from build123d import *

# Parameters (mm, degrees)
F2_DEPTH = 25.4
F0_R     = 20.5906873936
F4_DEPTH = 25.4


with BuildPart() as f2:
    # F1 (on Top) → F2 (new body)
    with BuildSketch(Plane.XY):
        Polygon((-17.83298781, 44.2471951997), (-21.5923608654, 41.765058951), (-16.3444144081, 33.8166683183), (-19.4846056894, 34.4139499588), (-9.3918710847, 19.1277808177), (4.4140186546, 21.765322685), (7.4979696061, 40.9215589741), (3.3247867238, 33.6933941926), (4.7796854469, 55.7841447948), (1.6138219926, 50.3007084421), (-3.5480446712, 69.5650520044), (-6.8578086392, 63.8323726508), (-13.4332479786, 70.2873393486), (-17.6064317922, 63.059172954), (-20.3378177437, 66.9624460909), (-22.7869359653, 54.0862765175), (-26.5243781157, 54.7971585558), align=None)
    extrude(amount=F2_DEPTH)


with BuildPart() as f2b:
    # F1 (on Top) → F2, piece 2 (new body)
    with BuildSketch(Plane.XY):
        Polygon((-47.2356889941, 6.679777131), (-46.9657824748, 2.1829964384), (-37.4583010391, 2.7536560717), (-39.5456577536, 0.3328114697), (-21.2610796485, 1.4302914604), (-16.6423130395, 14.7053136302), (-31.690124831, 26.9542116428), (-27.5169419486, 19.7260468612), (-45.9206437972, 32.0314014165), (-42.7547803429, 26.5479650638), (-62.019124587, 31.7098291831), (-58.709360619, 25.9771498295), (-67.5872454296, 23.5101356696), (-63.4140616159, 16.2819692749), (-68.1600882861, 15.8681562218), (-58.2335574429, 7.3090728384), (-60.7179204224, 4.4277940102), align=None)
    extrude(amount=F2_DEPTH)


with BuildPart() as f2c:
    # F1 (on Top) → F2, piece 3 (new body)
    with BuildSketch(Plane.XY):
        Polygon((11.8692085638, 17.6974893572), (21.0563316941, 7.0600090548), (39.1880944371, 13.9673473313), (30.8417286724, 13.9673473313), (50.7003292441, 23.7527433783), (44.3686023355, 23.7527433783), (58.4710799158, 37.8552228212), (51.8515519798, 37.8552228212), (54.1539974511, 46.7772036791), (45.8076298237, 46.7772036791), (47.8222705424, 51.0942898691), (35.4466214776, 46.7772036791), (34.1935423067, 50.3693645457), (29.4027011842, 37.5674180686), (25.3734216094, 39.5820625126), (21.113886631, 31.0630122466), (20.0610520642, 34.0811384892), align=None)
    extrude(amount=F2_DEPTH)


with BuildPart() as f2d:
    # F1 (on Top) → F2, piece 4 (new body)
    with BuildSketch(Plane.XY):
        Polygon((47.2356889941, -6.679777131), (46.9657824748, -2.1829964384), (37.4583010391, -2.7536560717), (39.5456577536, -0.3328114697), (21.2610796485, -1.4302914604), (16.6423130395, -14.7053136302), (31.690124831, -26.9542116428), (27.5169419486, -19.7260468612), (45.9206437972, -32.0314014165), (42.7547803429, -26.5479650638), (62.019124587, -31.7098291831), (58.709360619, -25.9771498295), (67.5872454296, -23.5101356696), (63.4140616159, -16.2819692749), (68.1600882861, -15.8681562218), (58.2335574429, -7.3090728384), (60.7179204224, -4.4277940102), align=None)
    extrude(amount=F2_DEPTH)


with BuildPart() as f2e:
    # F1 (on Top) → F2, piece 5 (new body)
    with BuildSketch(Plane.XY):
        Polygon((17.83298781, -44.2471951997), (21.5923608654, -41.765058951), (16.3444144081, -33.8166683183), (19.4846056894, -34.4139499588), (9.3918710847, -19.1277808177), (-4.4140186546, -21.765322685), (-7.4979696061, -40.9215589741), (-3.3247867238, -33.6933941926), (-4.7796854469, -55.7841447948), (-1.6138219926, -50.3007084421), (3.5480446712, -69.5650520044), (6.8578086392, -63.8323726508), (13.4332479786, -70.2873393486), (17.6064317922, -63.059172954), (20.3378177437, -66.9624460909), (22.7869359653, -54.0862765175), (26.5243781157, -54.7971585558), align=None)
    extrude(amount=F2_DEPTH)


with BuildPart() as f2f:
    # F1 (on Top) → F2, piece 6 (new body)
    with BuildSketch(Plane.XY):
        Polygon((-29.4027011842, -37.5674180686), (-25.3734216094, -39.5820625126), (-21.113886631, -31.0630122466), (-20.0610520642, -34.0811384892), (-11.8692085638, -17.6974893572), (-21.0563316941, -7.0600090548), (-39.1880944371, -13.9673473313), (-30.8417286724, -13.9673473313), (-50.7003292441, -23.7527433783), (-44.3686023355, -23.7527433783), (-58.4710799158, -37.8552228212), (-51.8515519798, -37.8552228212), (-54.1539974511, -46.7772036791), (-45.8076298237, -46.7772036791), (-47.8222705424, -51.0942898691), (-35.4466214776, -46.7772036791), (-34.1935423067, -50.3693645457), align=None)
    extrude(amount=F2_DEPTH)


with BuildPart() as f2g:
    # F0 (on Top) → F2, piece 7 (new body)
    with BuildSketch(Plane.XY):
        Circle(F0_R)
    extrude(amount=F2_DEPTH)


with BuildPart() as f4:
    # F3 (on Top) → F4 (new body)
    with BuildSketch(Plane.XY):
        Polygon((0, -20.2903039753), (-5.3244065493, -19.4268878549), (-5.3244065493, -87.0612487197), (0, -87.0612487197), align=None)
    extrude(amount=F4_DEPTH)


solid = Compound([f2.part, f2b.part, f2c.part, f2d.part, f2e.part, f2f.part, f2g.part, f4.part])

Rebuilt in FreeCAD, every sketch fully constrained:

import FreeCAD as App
import Part
import Sketcher

V = App.Vector
Q = App.Units.Quantity

doc = App.newDocument("Part")
params = doc.addObject("Spreadsheet::Sheet", "Params")
for row, (alias, value) in enumerate([
    ("pad1_length", "1 in"),
    ("pad2_length", "1 in"),
    ("pad3_length", "1 in"),
    ("pad4_length", "1 in"),
    ("pad5_length", "1 in"),
    ("pad6_length", "1 in"),
    ("pad7_length", "1 in"),
    ("pad8_length", "1 in"),
], start=1):
    params.set(f"A{row}", alias)
    params.set(f"B{row}", "=" + value)
    params.setAlias(f"B{row}", alias)

body = doc.addObject("PartDesign::Body", "Body")

sketch1 = body.newObject("Sketcher::SketchObject", "Sketch")
sketch1.AttachmentSupport = (doc.getObject("XY_Plane"), [""])
sketch1.MapMode = "FlatFace"
sketch1.addGeometry([
    Part.LineSegment(V(-17.8, 44.2, 0), V(-21.6, 41.8, 0)),
    Part.LineSegment(V(-21.6, 41.8, 0), V(-16.3, 33.8, 0)),
    Part.LineSegment(V(-16.3, 33.8, 0), V(-19.5, 34.4, 0)),
    Part.LineSegment(V(-19.5, 34.4, 0), V(-9.4, 19.1, 0)),
    Part.LineSegment(V(-9.4, 19.1, 0), V(4.4, 21.8, 0)),
    Part.LineSegment(V(4.4, 21.8, 0), V(7.5, 40.9, 0)),
    Part.LineSegment(V(7.5, 40.9, 0), V(3.3, 33.7, 0)),
    Part.LineSegment(V(3.3, 33.7, 0), V(4.8, 55.8, 0)),
    Part.LineSegment(V(4.8, 55.8, 0), V(1.6, 50.3, 0)),
    Part.LineSegment(V(1.6, 50.3, 0), V(-3.5, 69.6, 0)),
    Part.LineSegment(V(-3.5, 69.6, 0), V(-6.9, 63.8, 0)),
    Part.LineSegment(V(-6.9, 63.8, 0), V(-13.4, 70.3, 0)),
    Part.LineSegment(V(-13.4, 70.3, 0), V(-17.6, 63.1, 0)),
    Part.LineSegment(V(-17.6, 63.1, 0), V(-20.3, 67, 0)),
    Part.LineSegment(V(-20.3, 67, 0), V(-22.8, 54.1, 0)),
    Part.LineSegment(V(-22.8, 54.1, 0), V(-26.5, 54.8, 0)),
    Part.LineSegment(V(-26.5, 54.8, 0), V(-17.8, 44.2, 0)),
], False)
sketch1.addConstraint([
    Sketcher.Constraint("Coincident", 0, 2, 1, 1),
    Sketcher.Constraint("Coincident", 1, 2, 2, 1),
    Sketcher.Constraint("Coincident", 2, 2, 3, 1),
    Sketcher.Constraint("Coincident", 3, 2, 4, 1),
    Sketcher.Constraint("Coincident", 4, 2, 5, 1),
    Sketcher.Constraint("Coincident", 5, 2, 6, 1),
    Sketcher.Constraint("Coincident", 6, 2, 7, 1),
    Sketcher.Constraint("Coincident", 7, 2, 8, 1),
    Sketcher.Constraint("Coincident", 8, 2, 9, 1),
    Sketcher.Constraint("Coincident", 9, 2, 10, 1),
    Sketcher.Constraint("Coincident", 10, 2, 11, 1),
    Sketcher.Constraint("Coincident", 11, 2, 12, 1),
    Sketcher.Constraint("Coincident", 12, 2, 13, 1),
    Sketcher.Constraint("Coincident", 13, 2, 14, 1),
    Sketcher.Constraint("Coincident", 14, 2, 15, 1),
    Sketcher.Constraint("Coincident", 15, 2, 16, 1),
    Sketcher.Constraint("Coincident", 16, 2, 0, 1),
    Sketcher.Constraint("Perpendicular", 0, 1),
    Sketcher.Constraint("Parallel", 1, 3),
    Sketcher.Constraint("Parallel", 6, 8),
    Sketcher.Constraint("Parallel", 8, 10),
    Sketcher.Constraint("Parallel", 10, 12),
    Sketcher.Constraint("Perpendicular", 2, 14),
    Sketcher.Constraint("Perpendicular", 14, 15),
    Sketcher.Constraint("Equal", 6, 12),
    Sketcher.Constraint("Angle", 6, Q("-120 deg")),
    Sketcher.Constraint("Angle", 9, Q("105.000004 deg")),
    Sketcher.Constraint("DistanceY", 5, 2, 0, 2, Q("0.8435 mm")),
    Sketcher.Constraint("DistanceX", 1, 2, 6, 2, Q("19.669201 mm")),
    Sketcher.Constraint("DistanceX", 6, 2, 7, 2, Q("1.454899 mm")),
    Sketcher.Constraint("DistanceY", 12, 2, 10, 2, Q("0.7732 mm")),
    Sketcher.Constraint("DistanceY", 0, 2, 15, 2, Q("13.0321 mm")),
    Sketcher.Constraint("Distance", 2, Q("3.19649 mm")),
    Sketcher.Constraint("Distance", 5, Q("19.40289 mm")),
    Sketcher.Constraint("Distance", 7, Q("22.138609 mm")),
    Sketcher.Constraint("Distance", 14, Q("13.107018 mm")),
    Sketcher.Constraint("Distance", 15, Q("3.804448 mm")),
    Sketcher.Constraint("DistanceX", 0, 2, -1, 1, Q("21.592361 mm")),
    Sketcher.Constraint("DistanceY", -1, 1, 0, 2, Q("41.765059 mm")),
    Sketcher.Constraint("DistanceY", -1, 1, 1, 2, Q("33.816668 mm")),
    Sketcher.Constraint("DistanceY", -1, 1, 2, 2, Q("34.41395 mm")),
    Sketcher.Constraint("DistanceX", 3, 2, -1, 1, Q("9.391871 mm")),
    Sketcher.Constraint("DistanceY", -1, 1, 3, 2, Q("19.127781 mm")),
    Sketcher.Constraint("DistanceX", -1, 1, 4, 2, Q("4.414019 mm")),
    Sketcher.Constraint("DistanceX", -1, 1, 5, 2, Q("7.49797 mm")),
    Sketcher.Constraint("DistanceX", -1, 1, 8, 2, Q("1.613822 mm")),
    Sketcher.Constraint("DistanceX", 10, 2, -1, 1, Q("6.857809 mm")),
    Sketcher.Constraint("DistanceY", -1, 1, 11, 2, Q("70.287339 mm")),
    Sketcher.Constraint("DistanceX", 12, 2, -1, 1, Q("17.606432 mm")),
    Sketcher.Constraint("DistanceX", 15, 2, -1, 1, Q("26.524378 mm")),
    Sketcher.Constraint("DistanceX", 14, 2, 16, 2, Q("4.953948 mm")),
])
pad1 = body.newObject("PartDesign::Pad", "Pad")
pad1.Profile = sketch1
pad1.setExpression("Length", "Params.pad1_length")
body2 = doc.addObject("PartDesign::Body", "Body001")

sketch2 = body2.newObject("Sketcher::SketchObject", "Sketch001")
sketch2.AttachmentSupport = (doc.getObject("XY_Plane001"), [""])
sketch2.MapMode = "FlatFace"
sketch2.addGeometry([
    Part.LineSegment(V(-47.2, 6.7, 0), V(-47, 2.2, 0)),
    Part.LineSegment(V(-47, 2.2, 0), V(-37.5, 2.8, 0)),
    Part.LineSegment(V(-37.5, 2.8, 0), V(-39.5, 0.3, 0)),
    Part.LineSegment(V(-39.5, 0.3, 0), V(-21.3, 1.4, 0)),
    Part.LineSegment(V(-21.3, 1.4, 0), V(-16.6, 14.7, 0)),
    Part.LineSegment(V(-16.6, 14.7, 0), V(-31.7, 27, 0)),
    Part.LineSegment(V(-31.7, 27, 0), V(-27.5, 19.7, 0)),
    Part.LineSegment(V(-27.5, 19.7, 0), V(-45.9, 32, 0)),
    Part.LineSegment(V(-45.9, 32, 0), V(-42.8, 26.5, 0)),
    Part.LineSegment(V(-42.8, 26.5, 0), V(-62, 31.7, 0)),
    Part.LineSegment(V(-62, 31.7, 0), V(-58.7, 26, 0)),
    Part.LineSegment(V(-58.7, 26, 0), V(-67.6, 23.5, 0)),
    Part.LineSegment(V(-67.6, 23.5, 0), V(-63.4, 16.3, 0)),
    Part.LineSegment(V(-63.4, 16.3, 0), V(-68.2, 15.9, 0)),
    Part.LineSegment(V(-68.2, 15.9, 0), V(-58.2, 7.3, 0)),
    Part.LineSegment(V(-58.2, 7.3, 0), V(-60.7, 4.4, 0)),
    Part.LineSegment(V(-60.7, 4.4, 0), V(-47.2, 6.7, 0)),
], False)
sketch2.addConstraint([
    Sketcher.Constraint("Coincident", 0, 2, 1, 1),
    Sketcher.Constraint("Coincident", 1, 2, 2, 1),
    Sketcher.Constraint("Coincident", 2, 2, 3, 1),
    Sketcher.Constraint("Coincident", 3, 2, 4, 1),
    Sketcher.Constraint("Coincident", 4, 2, 5, 1),
    Sketcher.Constraint("Coincident", 5, 2, 6, 1),
    Sketcher.Constraint("Coincident", 6, 2, 7, 1),
    Sketcher.Constraint("Coincident", 7, 2, 8, 1),
    Sketcher.Constraint("Coincident", 8, 2, 9, 1),
    Sketcher.Constraint("Coincident", 9, 2, 10, 1),
    Sketcher.Constraint("Coincident", 10, 2, 11, 1),
    Sketcher.Constraint("Coincident", 11, 2, 12, 1),
    Sketcher.Constraint("Coincident", 12, 2, 13, 1),
    Sketcher.Constraint("Coincident", 13, 2, 14, 1),
    Sketcher.Constraint("Coincident", 14, 2, 15, 1),
    Sketcher.Constraint("Coincident", 15, 2, 16, 1),
    Sketcher.Constraint("Coincident", 16, 2, 0, 1),
    Sketcher.Constraint("Perpendicular", 0, 1),
    Sketcher.Constraint("Parallel", 1, 3),
    Sketcher.Constraint("Parallel", 6, 8),
    Sketcher.Constraint("Parallel", 8, 10),
    Sketcher.Constraint("Parallel", 10, 12),
    Sketcher.Constraint("Perpendicular", 2, 14),
    Sketcher.Constraint("Perpendicular", 14, 15),
    Sketcher.Constraint("Equal", 6, 12),
    Sketcher.Constraint("Angle", 6, Q("-60 deg")),
    Sketcher.Constraint("Angle", 9, Q("165.000004 deg")),
    Sketcher.Constraint("DistanceY", 12, 2, 10, 2, Q("0.3817 in")),
    Sketcher.Constraint("DistanceY", 15, 2, 12, 2, Q("0.4666998 in")),
    Sketcher.Constraint("DistanceX", 1, 2, -1, 1, Q("37.458301 mm")),
    Sketcher.Constraint("DistanceY", -1, 1, 7, 2, Q("32.031401 mm")),
    Sketcher.Constraint("DistanceY", 4, 2, 5, 2, Q("12.248898 mm")),
    Sketcher.Constraint("DistanceY", 2, 2, 5, 2, Q("26.6214 mm")),
    Sketcher.Constraint("DistanceX", 7, 2, 6, 2, Q("18.403702 mm")),
    Sketcher.Constraint("DistanceX", 9, 2, 5, 2, Q("30.329 mm")),
    Sketcher.Constraint("DistanceX", 11, 2, 7, 2, Q("21.666602 mm")),
    Sketcher.Constraint("DistanceX", 12, 2, 10, 2, Q("4.704701 mm")),
    Sketcher.Constraint("Distance", 2, Q("3.19649 mm")),
    Sketcher.Constraint("Distance", 5, Q("19.40289 mm")),
    Sketcher.Constraint("Distance", 7, Q("22.138609 mm")),
    Sketcher.Constraint("Distance", 14, Q("13.107018 mm")),
    Sketcher.Constraint("Distance", 15, Q("3.804448 mm")),
    Sketcher.Constraint("DistanceY", -1, 1, 2, 2, Q("0.332811 mm")),
    Sketcher.Constraint("DistanceX", 3, 2, -1, 1, Q("21.26108 mm")),
    Sketcher.Constraint("DistanceY", -1, 1, 3, 2, Q("1.430291 mm")),
    Sketcher.Constraint("DistanceX", 6, 2, -1, 1, Q("27.516942 mm")),
    Sketcher.Constraint("DistanceX", 8, 2, -1, 1, Q("42.75478 mm")),
    Sketcher.Constraint("DistanceX", 13, 2, -1, 1, Q("68.160088 mm")),
    Sketcher.Constraint("DistanceX", 15, 2, -1, 1, Q("60.71792 mm")),
    Sketcher.Constraint("DistanceX", 16, 2, -1, 1, Q("47.235689 mm")),
    Sketcher.Constraint("DistanceX", 0, 2, 1, 2, Q("9.507481 mm")),
])
pad2 = body2.newObject("PartDesign::Pad", "Pad001")
pad2.Profile = sketch2
pad2.setExpression("Length", "Params.pad2_length")
body3 = doc.addObject("PartDesign::Body", "Body002")

sketch3 = body3.newObject("Sketcher::SketchObject", "Sketch002")
sketch3.AttachmentSupport = (doc.getObject("XY_Plane002"), [""])
sketch3.MapMode = "FlatFace"
sketch3.addGeometry([
    Part.LineSegment(V(11.9, 17.7, 0), V(21.1, 7.1, 0)),
    Part.LineSegment(V(21.1, 7.1, 0), V(39.2, 14, 0)),
    Part.LineSegment(V(39.2, 14, 0), V(30.8, 14, 0)),
    Part.LineSegment(V(30.8, 14, 0), V(50.7, 23.8, 0)),
    Part.LineSegment(V(50.7, 23.8, 0), V(44.4, 23.8, 0)),
    Part.LineSegment(V(44.4, 23.8, 0), V(58.5, 37.9, 0)),
    Part.LineSegment(V(58.5, 37.9, 0), V(51.9, 37.9, 0)),
    Part.LineSegment(V(51.9, 37.9, 0), V(54.2, 46.8, 0)),
    Part.LineSegment(V(54.2, 46.8, 0), V(45.8, 46.8, 0)),
    Part.LineSegment(V(45.8, 46.8, 0), V(47.8, 51.1, 0)),
    Part.LineSegment(V(47.8, 51.1, 0), V(35.4, 46.8, 0)),
    Part.LineSegment(V(35.4, 46.8, 0), V(34.2, 50.4, 0)),
    Part.LineSegment(V(34.2, 50.4, 0), V(29.4, 37.6, 0)),
    Part.LineSegment(V(29.4, 37.6, 0), V(25.4, 39.6, 0)),
    Part.LineSegment(V(25.4, 39.6, 0), V(21.1, 31.1, 0)),
    Part.LineSegment(V(21.1, 31.1, 0), V(20.1, 34.1, 0)),
    Part.LineSegment(V(20.1, 34.1, 0), V(11.9, 17.7, 0)),
], False)
sketch3.addConstraint([
    Sketcher.Constraint("Coincident", 0, 2, 1, 1),
    Sketcher.Constraint("Coincident", 1, 2, 2, 1),
    Sketcher.Constraint("Coincident", 2, 2, 3, 1),
    Sketcher.Constraint("Coincident", 3, 2, 4, 1),
    Sketcher.Constraint("Coincident", 4, 2, 5, 1),
    Sketcher.Constraint("Coincident", 5, 2, 6, 1),
    Sketcher.Constraint("Coincident", 6, 2, 7, 1),
    Sketcher.Constraint("Coincident", 7, 2, 8, 1),
    Sketcher.Constraint("Coincident", 8, 2, 9, 1),
    Sketcher.Constraint("Coincident", 9, 2, 10, 1),
    Sketcher.Constraint("Coincident", 10, 2, 11, 1),
    Sketcher.Constraint("Coincident", 11, 2, 12, 1),
    Sketcher.Constraint("Coincident", 12, 2, 13, 1),
    Sketcher.Constraint("Coincident", 13, 2, 14, 1),
    Sketcher.Constraint("Coincident", 14, 2, 15, 1),
    Sketcher.Constraint("Coincident", 15, 2, 16, 1),
    Sketcher.Constraint("Coincident", 16, 2, 0, 1),
    Sketcher.Constraint("Horizontal", 2),
    Sketcher.Constraint("Horizontal", 4),
    Sketcher.Constraint("Horizontal", 6),
    Sketcher.Constraint("Horizontal", 8),
    Sketcher.Constraint("Perpendicular", 10, 11),
    Sketcher.Constraint("Perpendicular", 13, 14),
    Sketcher.Constraint("Parallel", 11, 15),
    Sketcher.Constraint("Parallel", 14, 16),
    Sketcher.Constraint("Horizontal", 8, 2, 10, 2),
    Sketcher.Constraint("Equal", 2, 8),
    Sketcher.Constraint("Angle", 5, Q("45.000004 deg")),
    Sketcher.Constraint("DistanceX", -1, 1, 12, 2, Q("29.402701 mm")),
    Sketcher.Constraint("DistanceX", 2, 2, 3, 2, Q("19.858601 mm")),
    Sketcher.Constraint("DistanceX", 8, 2, 3, 2, Q("4.892699 mm")),
    Sketcher.Constraint("DistanceX", 12, 2, 4, 2, Q("14.965901 mm")),
    Sketcher.Constraint("DistanceX", 13, 2, 10, 2, Q("10.0732 mm")),
    Sketcher.Constraint("Distance", 1, Q("19.40289 mm")),
    Sketcher.Constraint("Distance", 3, Q("22.138609 mm")),
    Sketcher.Constraint("Distance", 10, Q("13.107018 mm")),
    Sketcher.Constraint("Distance", 11, Q("3.804448 mm")),
    Sketcher.Constraint("Distance", 15, Q("3.19649 mm")),
    Sketcher.Constraint("DistanceX", 2, 2, 2, 1, Q("8.346366 mm")),
    Sketcher.Constraint("DistanceX", 4, 2, 4, 1, Q("6.331727 mm")),
    Sketcher.Constraint("DistanceX", 6, 2, 6, 1, Q("6.619528 mm")),
    Sketcher.Constraint("DistanceX", -1, 1, 0, 2, Q("21.056332 mm")),
    Sketcher.Constraint("DistanceY", -1, 1, 0, 2, Q("7.060009 mm")),
    Sketcher.Constraint("DistanceX", -1, 1, 5, 2, Q("58.47108 mm")),
    Sketcher.Constraint("DistanceX", -1, 1, 9, 2, Q("47.822271 mm")),
    Sketcher.Constraint("DistanceY", -1, 1, 9, 2, Q("51.09429 mm")),
    Sketcher.Constraint("DistanceX", -1, 1, 10, 2, Q("35.446621 mm")),
    Sketcher.Constraint("DistanceY", -1, 1, 12, 2, Q("37.567418 mm")),
    Sketcher.Constraint("DistanceY", -1, 1, 15, 2, Q("34.081138 mm")),
    Sketcher.Constraint("DistanceX", -1, 1, 16, 2, Q("11.869209 mm")),
    Sketcher.Constraint("DistanceY", -1, 1, 16, 2, Q("17.697489 mm")),
])
pad3 = body3.newObject("PartDesign::Pad", "Pad002")
pad3.Profile = sketch3
pad3.setExpression("Length", "Params.pad3_length")
body4 = doc.addObject("PartDesign::Body", "Body003")

sketch4 = body4.newObject("Sketcher::SketchObject", "Sketch003")
sketch4.AttachmentSupport = (doc.getObject("XY_Plane003"), [""])
sketch4.MapMode = "FlatFace"
sketch4.addGeometry([
    Part.LineSegment(V(47.2, -6.7, 0), V(47, -2.2, 0)),
    Part.LineSegment(V(47, -2.2, 0), V(37.5, -2.8, 0)),
    Part.LineSegment(V(37.5, -2.8, 0), V(39.5, -0.3, 0)),
    Part.LineSegment(V(39.5, -0.3, 0), V(21.3, -1.4, 0)),
    Part.LineSegment(V(21.3, -1.4, 0), V(16.6, -14.7, 0)),
    Part.LineSegment(V(16.6, -14.7, 0), V(31.7, -27, 0)),
    Part.LineSegment(V(31.7, -27, 0), V(27.5, -19.7, 0)),
    Part.LineSegment(V(27.5, -19.7, 0), V(45.9, -32, 0)),
    Part.LineSegment(V(45.9, -32, 0), V(42.8, -26.5, 0)),
    Part.LineSegment(V(42.8, -26.5, 0), V(62, -31.7, 0)),
    Part.LineSegment(V(62, -31.7, 0), V(58.7, -26, 0)),
    Part.LineSegment(V(58.7, -26, 0), V(67.6, -23.5, 0)),
    Part.LineSegment(V(67.6, -23.5, 0), V(63.4, -16.3, 0)),
    Part.LineSegment(V(63.4, -16.3, 0), V(68.2, -15.9, 0)),
    Part.LineSegment(V(68.2, -15.9, 0), V(58.2, -7.3, 0)),
    Part.LineSegment(V(58.2, -7.3, 0), V(60.7, -4.4, 0)),
    Part.LineSegment(V(60.7, -4.4, 0), V(47.2, -6.7, 0)),
], False)
sketch4.addConstraint([
    Sketcher.Constraint("Coincident", 0, 2, 1, 1),
    Sketcher.Constraint("Coincident", 1, 2, 2, 1),
    Sketcher.Constraint("Coincident", 2, 2, 3, 1),
    Sketcher.Constraint("Coincident", 3, 2, 4, 1),
    Sketcher.Constraint("Coincident", 4, 2, 5, 1),
    Sketcher.Constraint("Coincident", 5, 2, 6, 1),
    Sketcher.Constraint("Coincident", 6, 2, 7, 1),
    Sketcher.Constraint("Coincident", 7, 2, 8, 1),
    Sketcher.Constraint("Coincident", 8, 2, 9, 1),
    Sketcher.Constraint("Coincident", 9, 2, 10, 1),
    Sketcher.Constraint("Coincident", 10, 2, 11, 1),
    Sketcher.Constraint("Coincident", 11, 2, 12, 1),
    Sketcher.Constraint("Coincident", 12, 2, 13, 1),
    Sketcher.Constraint("Coincident", 13, 2, 14, 1),
    Sketcher.Constraint("Coincident", 14, 2, 15, 1),
    Sketcher.Constraint("Coincident", 15, 2, 16, 1),
    Sketcher.Constraint("Coincident", 16, 2, 0, 1),
    Sketcher.Constraint("Perpendicular", 0, 1),
    Sketcher.Constraint("Parallel", 1, 3),
    Sketcher.Constraint("Parallel", 6, 8),
    Sketcher.Constraint("Parallel", 8, 10),
    Sketcher.Constraint("Parallel", 10, 12),
    Sketcher.Constraint("Perpendicular", 2, 14),
    Sketcher.Constraint("Perpendicular", 14, 15),
    Sketcher.Constraint("Equal", 6, 12),
    Sketcher.Constraint("Angle", 6, Q("120 deg")),
    Sketcher.Constraint("Angle", 9, Q("-14.999996 deg")),
    Sketcher.Constraint("DistanceY", 10, 2, 12, 2, Q("0.3817 in")),
    Sketcher.Constraint("DistanceY", 12, 2, 15, 2, Q("0.4666998 in")),
    Sketcher.Constraint("DistanceX", -1, 1, 1, 2, Q("37.458301 mm")),
    Sketcher.Constraint("DistanceY", 7, 2, -1, 1, Q("32.031401 mm")),
    Sketcher.Constraint("DistanceY", 5, 2, 4, 2, Q("12.248898 mm")),
    Sketcher.Constraint("DistanceY", 5, 2, 2, 2, Q("26.6214 mm")),
    Sketcher.Constraint("DistanceX", 6, 2, 7, 2, Q("18.403702 mm")),
    Sketcher.Constraint("DistanceX", 5, 2, 9, 2, Q("30.329 mm")),
    Sketcher.Constraint("DistanceX", 7, 2, 11, 2, Q("21.666602 mm")),
    Sketcher.Constraint("DistanceX", 10, 2, 12, 2, Q("4.704701 mm")),
    Sketcher.Constraint("Distance", 2, Q("3.19649 mm")),
    Sketcher.Constraint("Distance", 5, Q("19.40289 mm")),
    Sketcher.Constraint("Distance", 7, Q("22.138609 mm")),
    Sketcher.Constraint("Distance", 14, Q("13.107018 mm")),
    Sketcher.Constraint("Distance", 15, Q("3.804448 mm")),
    Sketcher.Constraint("DistanceY", 2, 2, -1, 1, Q("0.332811 mm")),
    Sketcher.Constraint("DistanceX", -1, 1, 3, 2, Q("21.26108 mm")),
    Sketcher.Constraint("DistanceY", 3, 2, -1, 1, Q("1.430291 mm")),
    Sketcher.Constraint("DistanceX", -1, 1, 6, 2, Q("27.516942 mm")),
    Sketcher.Constraint("DistanceX", -1, 1, 8, 2, Q("42.75478 mm")),
    Sketcher.Constraint("DistanceX", -1, 1, 13, 2, Q("68.160088 mm")),
    Sketcher.Constraint("DistanceX", -1, 1, 15, 2, Q("60.71792 mm")),
    Sketcher.Constraint("DistanceX", -1, 1, 16, 2, Q("47.235689 mm")),
    Sketcher.Constraint("DistanceX", 1, 2, 0, 2, Q("9.507481 mm")),
])
pad4 = body4.newObject("PartDesign::Pad", "Pad003")
pad4.Profile = sketch4
pad4.setExpression("Length", "Params.pad4_length")
body5 = doc.addObject("PartDesign::Body", "Body004")

sketch5 = body5.newObject("Sketcher::SketchObject", "Sketch004")
sketch5.AttachmentSupport = (doc.getObject("XY_Plane004"), [""])
sketch5.MapMode = "FlatFace"
sketch5.addGeometry([
    Part.LineSegment(V(17.8, -44.2, 0), V(21.6, -41.8, 0)),
    Part.LineSegment(V(21.6, -41.8, 0), V(16.3, -33.8, 0)),
    Part.LineSegment(V(16.3, -33.8, 0), V(19.5, -34.4, 0)),
    Part.LineSegment(V(19.5, -34.4, 0), V(9.4, -19.1, 0)),
    Part.LineSegment(V(9.4, -19.1, 0), V(-4.4, -21.8, 0)),
    Part.LineSegment(V(-4.4, -21.8, 0), V(-7.5, -40.9, 0)),
    Part.LineSegment(V(-7.5, -40.9, 0), V(-3.3, -33.7, 0)),
    Part.LineSegment(V(-3.3, -33.7, 0), V(-4.8, -55.8, 0)),
    Part.LineSegment(V(-4.8, -55.8, 0), V(-1.6, -50.3, 0)),
    Part.LineSegment(V(-1.6, -50.3, 0), V(3.5, -69.6, 0)),
    Part.LineSegment(V(3.5, -69.6, 0), V(6.9, -63.8, 0)),
    Part.LineSegment(V(6.9, -63.8, 0), V(13.4, -70.3, 0)),
    Part.LineSegment(V(13.4, -70.3, 0), V(17.6, -63.1, 0)),
    Part.LineSegment(V(17.6, -63.1, 0), V(20.3, -67, 0)),
    Part.LineSegment(V(20.3, -67, 0), V(22.8, -54.1, 0)),
    Part.LineSegment(V(22.8, -54.1, 0), V(26.5, -54.8, 0)),
    Part.LineSegment(V(26.5, -54.8, 0), V(17.8, -44.2, 0)),
], False)
sketch5.addConstraint([
    Sketcher.Constraint("Coincident", 0, 2, 1, 1),
    Sketcher.Constraint("Coincident", 1, 2, 2, 1),
    Sketcher.Constraint("Coincident", 2, 2, 3, 1),
    Sketcher.Constraint("Coincident", 3, 2, 4, 1),
    Sketcher.Constraint("Coincident", 4, 2, 5, 1),
    Sketcher.Constraint("Coincident", 5, 2, 6, 1),
    Sketcher.Constraint("Coincident", 6, 2, 7, 1),
    Sketcher.Constraint("Coincident", 7, 2, 8, 1),
    Sketcher.Constraint("Coincident", 8, 2, 9, 1),
    Sketcher.Constraint("Coincident", 9, 2, 10, 1),
    Sketcher.Constraint("Coincident", 10, 2, 11, 1),
    Sketcher.Constraint("Coincident", 11, 2, 12, 1),
    Sketcher.Constraint("Coincident", 12, 2, 13, 1),
    Sketcher.Constraint("Coincident", 13, 2, 14, 1),
    Sketcher.Constraint("Coincident", 14, 2, 15, 1),
    Sketcher.Constraint("Coincident", 15, 2, 16, 1),
    Sketcher.Constraint("Coincident", 16, 2, 0, 1),
    Sketcher.Constraint("Perpendicular", 0, 1),
    Sketcher.Constraint("Parallel", 1, 3),
    Sketcher.Constraint("Parallel", 6, 8),
    Sketcher.Constraint("Parallel", 8, 10),
    Sketcher.Constraint("Parallel", 10, 12),
    Sketcher.Constraint("Perpendicular", 2, 14),
    Sketcher.Constraint("Perpendicular", 14, 15),
    Sketcher.Constraint("Equal", 6, 12),
    Sketcher.Constraint("Angle", 6, Q("60 deg")),
    Sketcher.Constraint("Angle", 9, Q("-74.999996 deg")),
    Sketcher.Constraint("DistanceY", 0, 2, 5, 2, Q("0.8435 mm")),
    Sketcher.Constraint("DistanceX", 6, 2, 1, 2, Q("19.669201 mm")),
    Sketcher.Constraint("DistanceX", 7, 2, 6, 2, Q("1.454899 mm")),
    Sketcher.Constraint("DistanceY", 10, 2, 12, 2, Q("0.7732 mm")),
    Sketcher.Constraint("DistanceY", 15, 2, 0, 2, Q("13.0321 mm")),
    Sketcher.Constraint("Distance", 2, Q("3.19649 mm")),
    Sketcher.Constraint("Distance", 5, Q("19.40289 mm")),
    Sketcher.Constraint("Distance", 7, Q("22.138609 mm")),
    Sketcher.Constraint("Distance", 14, Q("13.107018 mm")),
    Sketcher.Constraint("Distance", 15, Q("3.804448 mm")),
    Sketcher.Constraint("DistanceX", -1, 1, 0, 2, Q("21.592361 mm")),
    Sketcher.Constraint("DistanceY", 0, 2, -1, 1, Q("41.765059 mm")),
    Sketcher.Constraint("DistanceY", 1, 2, -1, 1, Q("33.816668 mm")),
    Sketcher.Constraint("DistanceY", 2, 2, -1, 1, Q("34.41395 mm")),
    Sketcher.Constraint("DistanceX", -1, 1, 3, 2, Q("9.391871 mm")),
    Sketcher.Constraint("DistanceY", 3, 2, -1, 1, Q("19.127781 mm")),
    Sketcher.Constraint("DistanceX", 4, 2, -1, 1, Q("4.414019 mm")),
    Sketcher.Constraint("DistanceX", 5, 2, -1, 1, Q("7.49797 mm")),
    Sketcher.Constraint("DistanceX", 8, 2, -1, 1, Q("1.613822 mm")),
    Sketcher.Constraint("DistanceX", -1, 1, 10, 2, Q("6.857809 mm")),
    Sketcher.Constraint("DistanceY", 11, 2, -1, 1, Q("70.287339 mm")),
    Sketcher.Constraint("DistanceX", -1, 1, 12, 2, Q("17.606432 mm")),
    Sketcher.Constraint("DistanceX", -1, 1, 15, 2, Q("26.524378 mm")),
    Sketcher.Constraint("DistanceX", 16, 2, 14, 2, Q("4.953948 mm")),
])
pad5 = body5.newObject("PartDesign::Pad", "Pad004")
pad5.Profile = sketch5
pad5.setExpression("Length", "Params.pad5_length")
body6 = doc.addObject("PartDesign::Body", "Body005")

sketch6 = body6.newObject("Sketcher::SketchObject", "Sketch005")
sketch6.AttachmentSupport = (doc.getObject("XY_Plane005"), [""])
sketch6.MapMode = "FlatFace"
sketch6.addGeometry([
    Part.LineSegment(V(-29.4, -37.6, 0), V(-25.4, -39.6, 0)),
    Part.LineSegment(V(-25.4, -39.6, 0), V(-21.1, -31.1, 0)),
    Part.LineSegment(V(-21.1, -31.1, 0), V(-20.1, -34.1, 0)),
    Part.LineSegment(V(-20.1, -34.1, 0), V(-11.9, -17.7, 0)),
    Part.LineSegment(V(-11.9, -17.7, 0), V(-21.1, -7.1, 0)),
    Part.LineSegment(V(-21.1, -7.1, 0), V(-39.2, -14, 0)),
    Part.LineSegment(V(-39.2, -14, 0), V(-30.8, -14, 0)),
    Part.LineSegment(V(-30.8, -14, 0), V(-50.7, -23.8, 0)),
    Part.LineSegment(V(-50.7, -23.8, 0), V(-44.4, -23.8, 0)),
    Part.LineSegment(V(-44.4, -23.8, 0), V(-58.5, -37.9, 0)),
    Part.LineSegment(V(-58.5, -37.9, 0), V(-51.9, -37.9, 0)),
    Part.LineSegment(V(-51.9, -37.9, 0), V(-54.2, -46.8, 0)),
    Part.LineSegment(V(-54.2, -46.8, 0), V(-45.8, -46.8, 0)),
    Part.LineSegment(V(-45.8, -46.8, 0), V(-47.8, -51.1, 0)),
    Part.LineSegment(V(-47.8, -51.1, 0), V(-35.4, -46.8, 0)),
    Part.LineSegment(V(-35.4, -46.8, 0), V(-34.2, -50.4, 0)),
    Part.LineSegment(V(-34.2, -50.4, 0), V(-29.4, -37.6, 0)),
], False)
sketch6.addConstraint([
    Sketcher.Constraint("Coincident", 0, 2, 1, 1),
    Sketcher.Constraint("Coincident", 1, 2, 2, 1),
    Sketcher.Constraint("Coincident", 2, 2, 3, 1),
    Sketcher.Constraint("Coincident", 3, 2, 4, 1),
    Sketcher.Constraint("Coincident", 4, 2, 5, 1),
    Sketcher.Constraint("Coincident", 5, 2, 6, 1),
    Sketcher.Constraint("Coincident", 6, 2, 7, 1),
    Sketcher.Constraint("Coincident", 7, 2, 8, 1),
    Sketcher.Constraint("Coincident", 8, 2, 9, 1),
    Sketcher.Constraint("Coincident", 9, 2, 10, 1),
    Sketcher.Constraint("Coincident", 10, 2, 11, 1),
    Sketcher.Constraint("Coincident", 11, 2, 12, 1),
    Sketcher.Constraint("Coincident", 12, 2, 13, 1),
    Sketcher.Constraint("Coincident", 13, 2, 14, 1),
    Sketcher.Constraint("Coincident", 14, 2, 15, 1),
    Sketcher.Constraint("Coincident", 15, 2, 16, 1),
    Sketcher.Constraint("Coincident", 16, 2, 0, 1),
    Sketcher.Constraint("Horizontal", 6),
    Sketcher.Constraint("Horizontal", 8),
    Sketcher.Constraint("Horizontal", 10),
    Sketcher.Constraint("Horizontal", 12),
    Sketcher.Constraint("Perpendicular", 0, 1),
    Sketcher.Constraint("Parallel", 1, 3),
    Sketcher.Constraint("Perpendicular", 2, 14),
    Sketcher.Constraint("Perpendicular", 14, 15),
    Sketcher.Constraint("Horizontal", 12, 2, 14, 2),
    Sketcher.Constraint("Equal", 6, 12),
    Sketcher.Constraint("Angle", 9, Q("-134.999996 deg")),
    Sketcher.Constraint("DistanceY", 1, 2, 4, 2, Q("0.9450001 in")),
    Sketcher.Constraint("DistanceX", 16, 2, -1, 1, Q("29.402701 mm")),
    Sketcher.Constraint("DistanceX", 7, 2, 6, 2, Q("19.858601 mm")),
    Sketcher.Constraint("DistanceX", 14, 2, 0, 2, Q("10.0732 mm")),
    Sketcher.Constraint("Distance", 2, Q("3.19649 mm")),
    Sketcher.Constraint("Distance", 5, Q("19.40289 mm")),
    Sketcher.Constraint("Distance", 7, Q("22.138609 mm")),
    Sketcher.Constraint("Distance", 14, Q("13.107018 mm")),
    Sketcher.Constraint("Distance", 15, Q("3.804448 mm")),
    Sketcher.Constraint("DistanceX", 6, 1, 6, 2, Q("8.346366 mm")),
    Sketcher.Constraint("DistanceX", 8, 1, 8, 2, Q("6.331727 mm")),
    Sketcher.Constraint("DistanceX", 10, 1, 10, 2, Q("6.619528 mm")),
    Sketcher.Constraint("DistanceX", 0, 2, -1, 1, Q("25.373422 mm")),
    Sketcher.Constraint("DistanceY", 2, 2, -1, 1, Q("34.081138 mm")),
    Sketcher.Constraint("DistanceX", 3, 2, -1, 1, Q("11.869209 mm")),
    Sketcher.Constraint("DistanceY", 3, 2, -1, 1, Q("17.697489 mm")),
    Sketcher.Constraint("DistanceX", 4, 2, -1, 1, Q("21.056332 mm")),
    Sketcher.Constraint("DistanceY", 4, 2, -1, 1, Q("7.060009 mm")),
    Sketcher.Constraint("DistanceX", 6, 2, -1, 1, Q("30.841729 mm")),
    Sketcher.Constraint("DistanceX", 9, 2, -1, 1, Q("58.47108 mm")),
    Sketcher.Constraint("DistanceX", 12, 2, -1, 1, Q("45.80763 mm")),
    Sketcher.Constraint("DistanceY", 13, 2, -1, 1, Q("51.09429 mm")),
    Sketcher.Constraint("DistanceY", 16, 2, -1, 1, Q("37.567418 mm")),
])
pad6 = body6.newObject("PartDesign::Pad", "Pad005")
pad6.Profile = sketch6
pad6.setExpression("Length", "Params.pad6_length")
body7 = doc.addObject("PartDesign::Body", "Body006")

sketch7 = body7.newObject("Sketcher::SketchObject", "Sketch006")
sketch7.AttachmentSupport = (doc.getObject("XY_Plane006"), [""])
sketch7.MapMode = "FlatFace"
sketch7.addGeometry(Part.Circle(V(0, 0, 0), V(0, 0, 1), 21), False)
sketch7.addConstraint([
    Sketcher.Constraint("Coincident", 0, 3, -1, 1),
    Sketcher.Constraint("Diameter", 0, Q("41.181375 mm")),
])
pad7 = body7.newObject("PartDesign::Pad", "Pad006")
pad7.Profile = sketch7
pad7.setExpression("Length", "Params.pad7_length")
body8 = doc.addObject("PartDesign::Body", "Body007")

sketch8 = body8.newObject("Sketcher::SketchObject", "Sketch007")
sketch8.AttachmentSupport = (doc.getObject("XY_Plane007"), [""])
sketch8.MapMode = "FlatFace"
sketch8.addGeometry([
    Part.LineSegment(V(0, -20, 0), V(-5, -19, 0)),
    Part.LineSegment(V(-5, -19, 0), V(-5, -87, 0)),
    Part.LineSegment(V(-5, -87, 0), V(0, -87, 0)),
    Part.LineSegment(V(0, -87, 0), V(0, -20, 0)),
], False)
sketch8.addConstraint([
    Sketcher.Constraint("Coincident", 0, 2, 1, 1),
    Sketcher.Constraint("Coincident", 1, 2, 2, 1),
    Sketcher.Constraint("Coincident", 2, 2, 3, 1),
    Sketcher.Constraint("Coincident", 3, 2, 0, 1),
    Sketcher.Constraint("Vertical", 1),
    Sketcher.Constraint("Horizontal", 2),
    Sketcher.Constraint("Vertical", 3),
    Sketcher.Constraint("PointOnObject", 2, 2, -2),
    Sketcher.Constraint("DistanceY", 1, 2, 1, 1, Q("67.634361 mm")),
    Sketcher.Constraint("Distance", 0, Q("5.393959 mm")),
    Sketcher.Constraint("DistanceX", 2, 1, 2, 2, Q("5.324407 mm")),
    Sketcher.Constraint("DistanceY", 1, 2, -1, 1, Q("87.061249 mm")),
])
pad8 = body8.newObject("PartDesign::Pad", "Pad007")
pad8.Profile = sketch8
pad8.setExpression("Length", "Params.pad8_length")

doc.recompute()
